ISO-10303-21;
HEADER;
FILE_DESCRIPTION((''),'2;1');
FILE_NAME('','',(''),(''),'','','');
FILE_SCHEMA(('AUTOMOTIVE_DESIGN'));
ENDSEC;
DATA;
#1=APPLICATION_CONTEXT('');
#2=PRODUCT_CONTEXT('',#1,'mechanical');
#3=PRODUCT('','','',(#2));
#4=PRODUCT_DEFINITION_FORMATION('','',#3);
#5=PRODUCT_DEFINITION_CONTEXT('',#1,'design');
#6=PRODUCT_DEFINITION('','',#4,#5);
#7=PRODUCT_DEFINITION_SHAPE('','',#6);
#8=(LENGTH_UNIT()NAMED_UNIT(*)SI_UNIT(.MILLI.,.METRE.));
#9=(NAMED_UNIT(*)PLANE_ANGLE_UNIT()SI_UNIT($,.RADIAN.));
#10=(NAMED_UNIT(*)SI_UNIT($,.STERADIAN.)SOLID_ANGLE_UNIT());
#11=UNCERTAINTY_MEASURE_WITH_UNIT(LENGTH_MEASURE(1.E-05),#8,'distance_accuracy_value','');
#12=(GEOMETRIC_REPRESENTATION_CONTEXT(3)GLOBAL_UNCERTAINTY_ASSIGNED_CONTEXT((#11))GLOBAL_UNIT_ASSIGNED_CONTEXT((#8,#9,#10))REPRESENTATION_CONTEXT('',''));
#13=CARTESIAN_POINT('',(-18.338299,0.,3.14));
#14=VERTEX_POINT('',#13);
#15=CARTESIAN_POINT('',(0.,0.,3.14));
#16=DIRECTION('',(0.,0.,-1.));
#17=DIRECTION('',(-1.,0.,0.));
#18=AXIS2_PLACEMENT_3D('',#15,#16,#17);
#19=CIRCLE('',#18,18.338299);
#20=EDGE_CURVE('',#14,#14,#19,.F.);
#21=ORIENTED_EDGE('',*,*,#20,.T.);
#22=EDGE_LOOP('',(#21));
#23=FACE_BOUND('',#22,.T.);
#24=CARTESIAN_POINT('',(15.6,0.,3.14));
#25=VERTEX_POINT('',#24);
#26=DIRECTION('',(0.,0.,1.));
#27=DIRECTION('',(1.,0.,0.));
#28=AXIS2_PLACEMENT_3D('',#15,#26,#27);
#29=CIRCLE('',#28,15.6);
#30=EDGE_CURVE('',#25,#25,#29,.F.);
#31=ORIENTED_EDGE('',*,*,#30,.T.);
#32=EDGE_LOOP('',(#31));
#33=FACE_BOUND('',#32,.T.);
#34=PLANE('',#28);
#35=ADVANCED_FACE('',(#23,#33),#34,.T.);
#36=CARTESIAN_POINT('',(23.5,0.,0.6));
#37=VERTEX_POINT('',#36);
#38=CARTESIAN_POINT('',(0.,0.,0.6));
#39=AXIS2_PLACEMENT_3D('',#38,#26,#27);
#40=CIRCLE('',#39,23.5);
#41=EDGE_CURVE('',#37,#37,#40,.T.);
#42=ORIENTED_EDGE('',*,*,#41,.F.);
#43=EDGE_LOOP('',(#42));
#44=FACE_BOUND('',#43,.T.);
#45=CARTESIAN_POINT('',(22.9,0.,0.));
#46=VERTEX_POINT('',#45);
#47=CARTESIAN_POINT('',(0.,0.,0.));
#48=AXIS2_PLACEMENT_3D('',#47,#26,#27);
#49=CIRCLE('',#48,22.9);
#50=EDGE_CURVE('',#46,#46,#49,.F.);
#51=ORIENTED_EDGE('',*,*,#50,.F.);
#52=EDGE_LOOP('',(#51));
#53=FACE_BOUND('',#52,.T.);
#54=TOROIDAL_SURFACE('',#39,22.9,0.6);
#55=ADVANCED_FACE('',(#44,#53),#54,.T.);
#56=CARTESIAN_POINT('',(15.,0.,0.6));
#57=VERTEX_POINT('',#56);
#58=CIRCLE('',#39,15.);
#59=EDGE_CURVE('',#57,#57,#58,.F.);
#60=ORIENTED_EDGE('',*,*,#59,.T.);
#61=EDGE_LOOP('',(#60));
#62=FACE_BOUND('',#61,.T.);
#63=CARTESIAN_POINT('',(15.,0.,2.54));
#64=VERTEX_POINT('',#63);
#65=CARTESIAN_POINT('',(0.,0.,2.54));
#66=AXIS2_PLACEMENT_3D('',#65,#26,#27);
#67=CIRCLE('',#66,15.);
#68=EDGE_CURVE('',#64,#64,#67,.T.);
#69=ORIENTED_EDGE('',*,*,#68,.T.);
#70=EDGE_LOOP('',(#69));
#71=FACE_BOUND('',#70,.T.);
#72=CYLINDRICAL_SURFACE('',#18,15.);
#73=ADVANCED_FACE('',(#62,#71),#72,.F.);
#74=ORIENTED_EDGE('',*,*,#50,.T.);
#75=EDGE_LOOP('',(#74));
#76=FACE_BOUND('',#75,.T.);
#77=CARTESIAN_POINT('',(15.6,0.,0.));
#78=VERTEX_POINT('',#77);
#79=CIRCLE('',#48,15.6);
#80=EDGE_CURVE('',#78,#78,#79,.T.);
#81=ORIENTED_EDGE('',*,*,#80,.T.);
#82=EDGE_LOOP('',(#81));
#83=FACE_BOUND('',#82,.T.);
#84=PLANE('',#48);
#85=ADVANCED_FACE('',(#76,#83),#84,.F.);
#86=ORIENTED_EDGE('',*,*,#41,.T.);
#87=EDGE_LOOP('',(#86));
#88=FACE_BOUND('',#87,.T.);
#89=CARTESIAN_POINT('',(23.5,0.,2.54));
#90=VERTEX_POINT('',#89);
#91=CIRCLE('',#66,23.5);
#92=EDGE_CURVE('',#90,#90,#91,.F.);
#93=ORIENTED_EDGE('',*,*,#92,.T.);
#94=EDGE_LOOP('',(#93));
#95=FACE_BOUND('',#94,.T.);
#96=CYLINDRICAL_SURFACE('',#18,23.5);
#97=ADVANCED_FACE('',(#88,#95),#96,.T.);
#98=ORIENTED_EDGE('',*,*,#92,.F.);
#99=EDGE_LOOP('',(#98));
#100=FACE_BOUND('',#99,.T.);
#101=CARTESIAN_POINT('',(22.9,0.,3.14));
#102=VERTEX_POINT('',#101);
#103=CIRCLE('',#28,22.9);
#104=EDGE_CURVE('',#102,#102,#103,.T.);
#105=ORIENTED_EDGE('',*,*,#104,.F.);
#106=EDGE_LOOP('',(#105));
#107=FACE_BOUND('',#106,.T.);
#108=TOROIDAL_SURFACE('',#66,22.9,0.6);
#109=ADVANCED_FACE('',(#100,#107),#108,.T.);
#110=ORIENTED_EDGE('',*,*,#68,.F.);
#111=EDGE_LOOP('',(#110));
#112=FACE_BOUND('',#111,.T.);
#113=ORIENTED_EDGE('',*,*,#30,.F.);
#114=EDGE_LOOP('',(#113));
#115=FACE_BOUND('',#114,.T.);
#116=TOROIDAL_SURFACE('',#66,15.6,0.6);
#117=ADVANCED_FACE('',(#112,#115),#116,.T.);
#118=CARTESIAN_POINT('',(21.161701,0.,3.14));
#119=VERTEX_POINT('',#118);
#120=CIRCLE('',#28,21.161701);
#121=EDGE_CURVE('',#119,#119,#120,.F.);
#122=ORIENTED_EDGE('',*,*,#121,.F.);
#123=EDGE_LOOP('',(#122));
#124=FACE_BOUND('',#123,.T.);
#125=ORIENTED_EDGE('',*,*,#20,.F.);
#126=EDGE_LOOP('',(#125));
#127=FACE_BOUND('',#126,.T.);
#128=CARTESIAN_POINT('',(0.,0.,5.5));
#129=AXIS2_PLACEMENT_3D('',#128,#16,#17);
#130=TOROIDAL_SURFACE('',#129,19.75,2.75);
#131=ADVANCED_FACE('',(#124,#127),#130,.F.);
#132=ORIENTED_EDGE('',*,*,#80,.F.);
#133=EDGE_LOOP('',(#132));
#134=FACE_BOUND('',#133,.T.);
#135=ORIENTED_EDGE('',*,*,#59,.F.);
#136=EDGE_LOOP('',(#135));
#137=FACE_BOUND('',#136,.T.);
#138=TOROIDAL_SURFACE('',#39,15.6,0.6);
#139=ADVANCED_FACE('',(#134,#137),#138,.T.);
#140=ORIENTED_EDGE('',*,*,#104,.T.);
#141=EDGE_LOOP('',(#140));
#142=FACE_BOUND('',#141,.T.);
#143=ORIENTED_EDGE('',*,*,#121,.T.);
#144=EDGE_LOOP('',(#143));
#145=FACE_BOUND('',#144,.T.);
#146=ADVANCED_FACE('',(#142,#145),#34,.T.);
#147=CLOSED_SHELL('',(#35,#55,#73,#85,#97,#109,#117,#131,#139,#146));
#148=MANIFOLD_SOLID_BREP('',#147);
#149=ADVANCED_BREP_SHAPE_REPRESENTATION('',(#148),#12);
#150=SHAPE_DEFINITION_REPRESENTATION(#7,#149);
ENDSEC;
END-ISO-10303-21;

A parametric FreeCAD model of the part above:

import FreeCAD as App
import Part
import Sketcher

V = App.Vector
Q = App.Units.Quantity


def edges_at(feature, points):
    """Names of the edges that pass closest to the given points."""
    edges = feature.Shape.Edges
    near = lambda p: min(range(len(edges)), key=lambda i: edges[i].distToShape(Part.Vertex(*p))[0])
    return sorted({f"Edge{near(p) + 1}" for p in points})

doc = App.newDocument("Part")
body = doc.addObject("PartDesign::Body", "Body")

sketch1 = body.newObject("Sketcher::SketchObject", "Sketch")
sketch1.AttachmentSupport = (doc.getObject("XY_Plane"), [""])
sketch1.MapMode = "FlatFace"
sketch1.addGeometry([
    Part.Circle(V(0, 0, 0), V(0, 0, 1), 23.5),
    Part.Circle(V(0, 0, 0), V(0, 0, 1), 15),
], False)
sketch1.addConstraint([
    Sketcher.Constraint("Coincident", 0, 3, -1, 1),
    Sketcher.Constraint("Coincident", 1, 3, -1, 1),
    Sketcher.Constraint("Diameter", 0, Q("47 mm")),
    Sketcher.Constraint("Diameter", 1, Q("30 mm")),
])
pad1 = body.newObject("PartDesign::Pad", "Pad")
pad1.Profile = sketch1
pad1.Length = 3.14

sketch2 = body.newObject("Sketcher::SketchObject", "Sketch001")
sketch2.AttachmentSupport = (doc.getObject("XZ_Plane"), [""])
sketch2.MapMode = "FlatFace"
sketch2.addGeometry(Part.Circle(V(19.75, 5.5, 0), V(0, 0, 1), 2.75), False)
sketch2.addConstraint([
    Sketcher.Constraint("Diameter", 0, Q("5.5 mm")),
    Sketcher.Constraint("DistanceY", -1, 1, 0, 3, Q("5.5 mm")),
    Sketcher.Constraint("DistanceX", -1, 1, 0, 3, Q("19.75 mm")),
])
groove = body.newObject("PartDesign::Groove", "Groove")
groove.Profile = sketch2
groove.ReferenceAxis = (sketch2, ["V_Axis"])
groove.Angle = 360
doc.recompute()

fillet = body.newObject("PartDesign::Fillet", "Fillet")
fillet.Base = (groove, edges_at(groove, [
    (-23.5, 0, 0),
    (-23.5, 0, 3.14),
    (-15, 0, 0),
    (-15, 0, 3.14),
]))
fillet.Radius = 0.6

doc.recompute()
